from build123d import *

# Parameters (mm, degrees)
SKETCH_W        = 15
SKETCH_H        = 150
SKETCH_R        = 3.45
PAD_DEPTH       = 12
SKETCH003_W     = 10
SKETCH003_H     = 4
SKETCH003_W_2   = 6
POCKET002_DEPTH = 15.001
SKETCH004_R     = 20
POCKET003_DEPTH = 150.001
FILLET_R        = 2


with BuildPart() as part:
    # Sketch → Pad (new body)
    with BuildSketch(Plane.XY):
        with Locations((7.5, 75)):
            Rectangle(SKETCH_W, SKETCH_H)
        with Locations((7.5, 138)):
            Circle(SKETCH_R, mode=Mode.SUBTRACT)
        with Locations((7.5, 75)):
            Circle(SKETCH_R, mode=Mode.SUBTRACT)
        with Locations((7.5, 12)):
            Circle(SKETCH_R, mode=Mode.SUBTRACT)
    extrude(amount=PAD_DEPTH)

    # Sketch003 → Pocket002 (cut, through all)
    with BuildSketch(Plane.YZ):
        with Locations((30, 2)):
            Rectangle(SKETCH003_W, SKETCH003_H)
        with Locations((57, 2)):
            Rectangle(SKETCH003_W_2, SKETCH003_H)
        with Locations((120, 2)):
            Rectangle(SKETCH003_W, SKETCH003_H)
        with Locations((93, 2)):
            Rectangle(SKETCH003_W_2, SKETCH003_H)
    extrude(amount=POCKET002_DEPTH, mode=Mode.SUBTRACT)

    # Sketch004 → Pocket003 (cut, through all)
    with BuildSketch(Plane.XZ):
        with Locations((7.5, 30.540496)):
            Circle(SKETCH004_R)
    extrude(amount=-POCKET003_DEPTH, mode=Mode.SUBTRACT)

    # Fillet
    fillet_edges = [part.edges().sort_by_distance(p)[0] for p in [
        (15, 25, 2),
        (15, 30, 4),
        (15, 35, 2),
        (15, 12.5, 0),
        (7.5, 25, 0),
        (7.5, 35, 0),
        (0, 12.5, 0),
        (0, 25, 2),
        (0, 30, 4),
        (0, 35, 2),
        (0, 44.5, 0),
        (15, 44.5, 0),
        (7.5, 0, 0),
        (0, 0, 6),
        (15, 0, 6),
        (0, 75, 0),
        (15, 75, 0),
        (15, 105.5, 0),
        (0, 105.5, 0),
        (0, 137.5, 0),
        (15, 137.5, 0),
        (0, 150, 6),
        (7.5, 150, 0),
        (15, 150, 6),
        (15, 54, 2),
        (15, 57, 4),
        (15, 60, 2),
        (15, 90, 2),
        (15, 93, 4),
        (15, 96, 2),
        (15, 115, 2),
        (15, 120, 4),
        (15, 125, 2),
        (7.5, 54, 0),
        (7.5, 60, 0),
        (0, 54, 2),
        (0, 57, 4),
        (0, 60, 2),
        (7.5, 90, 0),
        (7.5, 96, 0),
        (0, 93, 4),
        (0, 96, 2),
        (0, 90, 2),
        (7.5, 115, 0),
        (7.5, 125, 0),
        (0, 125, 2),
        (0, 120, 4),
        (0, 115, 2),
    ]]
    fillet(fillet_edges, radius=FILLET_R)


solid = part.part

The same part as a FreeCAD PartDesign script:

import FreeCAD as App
import Part
import Sketcher
from FreeCAD import Vector


def edges_at(feature, points):
    """Names of the edges that pass closest to the given points."""
    edges = feature.Shape.Edges
    near = lambda p: min(range(len(edges)), key=lambda i: edges[i].distToShape(Part.Vertex(*p))[0])
    return sorted({f"Edge{near(p) + 1}" for p in points})


def add_polygon(sketch, points):
    """Adds a closed chain of lines whose ends are joined by coincident constraints."""
    first, n = sketch.GeometryCount, len(points)
    for a, b in zip(points, points[1:] + points[:1]):
        sketch.addGeometry(Part.LineSegment(App.Vector(*a, 0), App.Vector(*b, 0)), False)
    for i in range(n):
        sketch.addConstraint(Sketcher.Constraint("Coincident", first + i, 2, first + (i + 1) % n, 1))

doc = App.newDocument("Part")
body = doc.addObject("PartDesign::Body", "Body")

sketch1 = doc.addObject("Sketcher::SketchObject", "Sketch")
body.addObject(sketch1)
sketch1.AttachmentSupport = (doc.XY_Plane, [""])
sketch1.MapMode = "FlatFace"
add_polygon(sketch1, [(0, 150), (0, 0), (15, 0), (15, 150)])
sketch1.addGeometry(Part.Circle(Vector(7.5, 12, 0), Vector(0, 0, 1), 3.5), False)
sketch1.addGeometry(Part.Circle(Vector(7.5, 75, 0), Vector(0, 0, 1), 3.5), False)
sketch1.addGeometry(Part.Circle(Vector(7.5, 138, 0), Vector(0, 0, 1), 3.5), False)
sketch1.addConstraint(Sketcher.Constraint("Vertical", 0))
sketch1.addConstraint(Sketcher.Constraint("Horizontal", 1))
sketch1.addConstraint(Sketcher.Constraint("Vertical", 2))
sketch1.addConstraint(Sketcher.Constraint("Horizontal", 3))
sketch1.addConstraint(Sketcher.Constraint("Coincident", 0, 2, -1, 1))
sketch1.addConstraint(Sketcher.Constraint("Equal", 4, 5))
sketch1.addConstraint(Sketcher.Constraint("Equal", 5, 6))
sketch1.addConstraint(Sketcher.Constraint("Vertical", 4, 3, 5, 3))
sketch1.addConstraint(Sketcher.Constraint("Vertical", 5, 3, 6, 3))
sketch1.addConstraint(Sketcher.Constraint("Diameter", 4, 6.9))
sketch1.addConstraint(Sketcher.Constraint("DistanceX", 1, 1, 1, 2, 15.0))
sketch1.addConstraint(Sketcher.Constraint("DistanceY", 0, 2, 0, 1, 150.0))
sketch1.addConstraint(Sketcher.Constraint("DistanceY", -1, 1, 4, 3, 12.0))
sketch1.addConstraint(Sketcher.Constraint("DistanceY", -1, 1, 5, 3, 75.0))
sketch1.addConstraint(Sketcher.Constraint("DistanceY", -1, 1, 6, 3, 138.0))
sketch1.addConstraint(Sketcher.Constraint("DistanceX", -1, 1, 4, 3, 7.5))
pad1 = doc.addObject("PartDesign::Pad", "Pad")
body.addObject(pad1)
pad1.Profile = sketch1
pad1.Length = 12

sketch2 = doc.addObject("Sketcher::SketchObject", "Sketch001")
body.addObject(sketch2)
sketch2.AttachmentSupport = (doc.YZ_Plane, [""])
sketch2.MapMode = "FlatFace"
add_polygon(sketch2, [(25, 4), (25, 0), (35, 0), (35, 4)])
add_polygon(sketch2, [(54, 4), (54, 0), (60, 0), (60, 4)])
add_polygon(sketch2, [(115, 4), (115, 0), (125, 0), (125, 4)])
add_polygon(sketch2, [(90, 4), (90, 0), (96, 0), (96, 4)])
sketch2.addConstraint(Sketcher.Constraint("Vertical", 0))
sketch2.addConstraint(Sketcher.Constraint("Horizontal", 1))
sketch2.addConstraint(Sketcher.Constraint("Vertical", 2))
sketch2.addConstraint(Sketcher.Constraint("Horizontal", 3))
sketch2.addConstraint(Sketcher.Constraint("Vertical", 4))
sketch2.addConstraint(Sketcher.Constraint("Horizontal", 5))
sketch2.addConstraint(Sketcher.Constraint("Vertical", 6))
sketch2.addConstraint(Sketcher.Constraint("Horizontal", 7))
sketch2.addConstraint(Sketcher.Constraint("Vertical", 8))
sketch2.addConstraint(Sketcher.Constraint("Horizontal", 9))
sketch2.addConstraint(Sketcher.Constraint("Vertical", 10))
sketch2.addConstraint(Sketcher.Constraint("Horizontal", 11))
sketch2.addConstraint(Sketcher.Constraint("Vertical", 12))
sketch2.addConstraint(Sketcher.Constraint("Horizontal", 13))
sketch2.addConstraint(Sketcher.Constraint("Vertical", 14))
sketch2.addConstraint(Sketcher.Constraint("Horizontal", 15))
sketch2.addConstraint(Sketcher.Constraint("PointOnObject", 0, 2, -1))
sketch2.addConstraint(Sketcher.Constraint("PointOnObject", 4, 2, -1))
sketch2.addConstraint(Sketcher.Constraint("PointOnObject", 8, 2, -1))
sketch2.addConstraint(Sketcher.Constraint("PointOnObject", 12, 2, -1))
sketch2.addConstraint(Sketcher.Constraint("Horizontal", 3, 2, 6, 2))
sketch2.addConstraint(Sketcher.Constraint("Horizontal", 7, 2, 10, 2))
sketch2.addConstraint(Sketcher.Constraint("Horizontal", 11, 2, 14, 2))
sketch2.addConstraint(Sketcher.Constraint("Equal", 3, 9))
sketch2.addConstraint(Sketcher.Constraint("Equal", 7, 13))
sketch2.addConstraint(Sketcher.Constraint("DistanceX", 1, 1, 1, 2, 10.0))
sketch2.addConstraint(Sketcher.Constraint("DistanceX", 5, 1, 5, 2, 6.0))
sketch2.addConstraint(Sketcher.Constraint("DistanceY", 0, 2, 0, 1, 4.0))
sketch2.addConstraint(Sketcher.Constraint("DistanceX", -1, 1, 0, 2, 25.0))
sketch2.addConstraint(Sketcher.Constraint("DistanceX", -1, 1, 4, 2, 54.0))
sketch2.addConstraint(Sketcher.Constraint("DistanceX", -1, 1, 8, 2, 115.0))
sketch2.addConstraint(Sketcher.Constraint("DistanceX", -1, 1, 12, 2, 90.0))
pocket1 = doc.addObject("PartDesign::Pocket", "Pocket")
body.addObject(pocket1)
pocket1.Profile = sketch2
pocket1.Type = "ThroughAll"
pocket1.Reversed = True

sketch3 = doc.addObject("Sketcher::SketchObject", "Sketch002")
body.addObject(sketch3)
sketch3.AttachmentSupport = (doc.XZ_Plane, [""])
sketch3.MapMode = "FlatFace"
sketch3.addGeometry(Part.Circle(Vector(8, 31, 0), Vector(0, 0, 1), 20), False)
sketch3.addConstraint(Sketcher.Constraint("Diameter", 0, 40.0))
sketch3.addConstraint(Sketcher.Constraint("DistanceX", -1, 1, 0, 3, 7.5))
sketch3.addConstraint(Sketcher.Constraint("DistanceY", -1, 1, 0, 3, 30.540496))
pocket2 = doc.addObject("PartDesign::Pocket", "Pocket001")
body.addObject(pocket2)
pocket2.Profile = sketch3
pocket2.Type = "ThroughAll"
doc.recompute()

fillet = doc.addObject("PartDesign::Fillet", "Fillet")
body.addObject(fillet)
fillet.Base = (pocket2, edges_at(pocket2, [
    (15, 25, 2),
    (15, 30, 4),
    (15, 35, 2),
    (15, 12.5, 0),
    (7.5, 25, 0),
    (7.5, 35, 0),
    (0, 12.5, 0),
    (0, 25, 2),
    (0, 30, 4),
    (0, 35, 2),
    (0, 44.5, 0),
    (15, 44.5, 0),
    (7.5, 0, 0),
    (0, 0, 6),
    (15, 0, 6),
    (0, 75, 0),
    (15, 75, 0),
    (15, 105.5, 0),
    (0, 105.5, 0),
    (0, 137.5, 0),
    (15, 137.5, 0),
    (0, 150, 6),
    (7.5, 150, 0),
    (15, 150, 6),
    (15, 54, 2),
    (15, 57, 4),
    (15, 60, 2),
    (15, 90, 2),
    (15, 93, 4),
    (15, 96, 2),
    (15, 115, 2),
    (15, 120, 4),
    (15, 125, 2),
    (7.5, 54, 0),
    (7.5, 60, 0),
    (0, 54, 2),
    (0, 57, 4),
    (0, 60, 2),
    (7.5, 90, 0),
    (7.5, 96, 0),
    (0, 93, 4),
    (0, 96, 2),
    (0, 90, 2),
    (7.5, 115, 0),
    (7.5, 125, 0),
    (0, 125, 2),
    (0, 120, 4),
    (0, 115, 2),
]))
fillet.Radius = 2

doc.recompute()
